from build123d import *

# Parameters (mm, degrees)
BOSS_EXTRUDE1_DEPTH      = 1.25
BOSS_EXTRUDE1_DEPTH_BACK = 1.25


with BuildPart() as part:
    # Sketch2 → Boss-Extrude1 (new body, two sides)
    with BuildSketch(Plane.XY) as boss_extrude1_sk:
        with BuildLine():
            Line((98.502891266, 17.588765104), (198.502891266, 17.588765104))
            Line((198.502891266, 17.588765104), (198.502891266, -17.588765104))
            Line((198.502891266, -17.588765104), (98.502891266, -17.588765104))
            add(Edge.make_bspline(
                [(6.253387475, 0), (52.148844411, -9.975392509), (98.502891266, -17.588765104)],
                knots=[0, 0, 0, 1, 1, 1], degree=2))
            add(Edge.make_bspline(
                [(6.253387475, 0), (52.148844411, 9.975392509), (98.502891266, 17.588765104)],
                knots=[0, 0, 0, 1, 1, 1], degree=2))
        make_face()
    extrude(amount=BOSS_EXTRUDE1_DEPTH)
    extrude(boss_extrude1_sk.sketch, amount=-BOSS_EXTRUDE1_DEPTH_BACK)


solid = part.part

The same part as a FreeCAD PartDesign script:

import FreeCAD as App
import Part
import Sketcher

V = App.Vector

doc = App.newDocument("Part")
body = doc.addObject("PartDesign::Body", "Body")

# Sketch on XY plane
sketch1 = doc.addObject("Sketcher::SketchObject", "Sketch")
body.addObject(sketch1)
sketch1.AttachmentSupport = (doc.XY_Plane, [""])
sketch1.MapMode = "FlatFace"
sketch1.addGeometry(Part.LineSegment(V(198.502891, 17.588765, 0), V(98.502891, 17.588765, 0)), False)
sketch1.addGeometry(Part.BSplineCurve([V(6.253387, 0, 0), V(52.148844, 9.975393, 0), V(98.502891, 17.588765, 0)], [3, 3], [0, 1], False, 2, [1, 1, 1], False), False)
sketch1.addGeometry(Part.BSplineCurve([V(6.253387, 0, 0), V(52.148844, -9.975393, 0), V(98.502891, -17.588765, 0)], [3, 3], [0, 1], False, 2, [1, 1, 1], False), False)
sketch1.addGeometry(Part.LineSegment(V(98.502891, -17.588765, 0), V(198.502891, -17.588765, 0)), False)
sketch1.addGeometry(Part.LineSegment(V(198.502891, -17.588765, 0), V(198.502891, 17.588765, 0)), False)
sketch1.addConstraint(Sketcher.Constraint("Block", 1))
sketch1.addConstraint(Sketcher.Constraint("Block", 2))
sketch1.addConstraint(Sketcher.Constraint("Coincident", 0, 2, 1, 2))
sketch1.addConstraint(Sketcher.Constraint("Coincident", 2, 2, 3, 1))
sketch1.addConstraint(Sketcher.Constraint("Coincident", 3, 2, 4, 1))
sketch1.addConstraint(Sketcher.Constraint("Coincident", 4, 2, 0, 1))
sketch1.addConstraint(Sketcher.Constraint("Horizontal", 0))
sketch1.addConstraint(Sketcher.Constraint("Horizontal", 3))
sketch1.addConstraint(Sketcher.Constraint("Vertical", 4))
sketch1.addConstraint(Sketcher.Constraint("DistanceX", 0, 2, 0, 1, 100.0))
pad1 = doc.addObject("PartDesign::Pad", "Pad")
body.addObject(pad1)
pad1.Profile = sketch1
pad1.Type = "TwoLengths"
pad1.Length = 1.25
pad1.Length2 = 1.25

doc.recompute()
